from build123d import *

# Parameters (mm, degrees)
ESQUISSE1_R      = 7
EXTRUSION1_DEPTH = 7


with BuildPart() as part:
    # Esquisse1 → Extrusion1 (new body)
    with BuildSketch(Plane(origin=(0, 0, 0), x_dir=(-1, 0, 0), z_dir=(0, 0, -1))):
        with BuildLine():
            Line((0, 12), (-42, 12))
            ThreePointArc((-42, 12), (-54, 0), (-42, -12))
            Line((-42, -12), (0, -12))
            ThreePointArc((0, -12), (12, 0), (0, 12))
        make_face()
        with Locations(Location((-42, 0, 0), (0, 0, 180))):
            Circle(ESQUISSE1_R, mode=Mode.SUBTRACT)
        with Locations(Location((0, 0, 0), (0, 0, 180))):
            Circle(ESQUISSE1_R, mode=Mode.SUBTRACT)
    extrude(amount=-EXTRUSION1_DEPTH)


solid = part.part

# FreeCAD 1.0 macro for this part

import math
import FreeCAD as App
import Part
import Sketcher

V = App.Vector
Q = App.Units.Quantity

doc = App.newDocument("Part")
body = doc.addObject("PartDesign::Body", "Body")

# Sketch on XY plane
sketch1 = body.newObject("Sketcher::SketchObject", "Sketch")
sketch1.AttachmentSupport = (doc.getObject("XY_Plane"), [""])
sketch1.MapMode = "FlatFace"
sketch1.addGeometry(Part.LineSegment(V(0, 12, 0), V(42, 12, 0)), False)
sketch1.addGeometry(Part.ArcOfCircle(Part.Circle(V(42, 0, 0), V(0, 0, 1), 12), math.radians(-90), math.radians(90)), False)
sketch1.addGeometry(Part.LineSegment(V(42, -12, 0), V(0, -12, 0)), False)
sketch1.addGeometry(Part.ArcOfCircle(Part.Circle(V(0, 0, 0), V(0, 0, 1), 12), math.radians(90), math.radians(270)), False)
sketch1.addGeometry(Part.Circle(V(42, 0, 0), V(0, 0, 1), 7), False)
sketch1.addGeometry(Part.Circle(V(0, 0, 0), V(0, 0, 1), 7), False)
sketch1.addConstraint(Sketcher.Constraint("Tangent", 0, 2, 1, 2))
sketch1.addConstraint(Sketcher.Constraint("Tangent", 1, 1, 2, 1))
sketch1.addConstraint(Sketcher.Constraint("Tangent", 2, 2, 3, 2))
sketch1.addConstraint(Sketcher.Constraint("Tangent", 3, 1, 0, 1))
sketch1.addConstraint(Sketcher.Constraint("Horizontal", 0))
sketch1.addConstraint(Sketcher.Constraint("Horizontal", 2))
sketch1.addConstraint(Sketcher.Constraint("Coincident", 3, 3, -1, 1))
sketch1.addConstraint(Sketcher.Constraint("Coincident", 5, 3, -1, 1))
sketch1.addConstraint(Sketcher.Constraint("Coincident", 4, 3, 1, 3))
sketch1.addConstraint(Sketcher.Constraint("Equal", 4, 5))
sketch1.addConstraint(Sketcher.Constraint("Diameter", 4, Q("14 mm")))
sketch1.addConstraint(Sketcher.Constraint("Radius", 1, Q("12 mm")))
sketch1.addConstraint(Sketcher.Constraint("DistanceX", 0, 1, 0, 2, Q("42 mm")))
pad1 = body.newObject("PartDesign::Pad", "Pad")
pad1.Profile = sketch1
pad1.Length = 7

doc.recompute()
